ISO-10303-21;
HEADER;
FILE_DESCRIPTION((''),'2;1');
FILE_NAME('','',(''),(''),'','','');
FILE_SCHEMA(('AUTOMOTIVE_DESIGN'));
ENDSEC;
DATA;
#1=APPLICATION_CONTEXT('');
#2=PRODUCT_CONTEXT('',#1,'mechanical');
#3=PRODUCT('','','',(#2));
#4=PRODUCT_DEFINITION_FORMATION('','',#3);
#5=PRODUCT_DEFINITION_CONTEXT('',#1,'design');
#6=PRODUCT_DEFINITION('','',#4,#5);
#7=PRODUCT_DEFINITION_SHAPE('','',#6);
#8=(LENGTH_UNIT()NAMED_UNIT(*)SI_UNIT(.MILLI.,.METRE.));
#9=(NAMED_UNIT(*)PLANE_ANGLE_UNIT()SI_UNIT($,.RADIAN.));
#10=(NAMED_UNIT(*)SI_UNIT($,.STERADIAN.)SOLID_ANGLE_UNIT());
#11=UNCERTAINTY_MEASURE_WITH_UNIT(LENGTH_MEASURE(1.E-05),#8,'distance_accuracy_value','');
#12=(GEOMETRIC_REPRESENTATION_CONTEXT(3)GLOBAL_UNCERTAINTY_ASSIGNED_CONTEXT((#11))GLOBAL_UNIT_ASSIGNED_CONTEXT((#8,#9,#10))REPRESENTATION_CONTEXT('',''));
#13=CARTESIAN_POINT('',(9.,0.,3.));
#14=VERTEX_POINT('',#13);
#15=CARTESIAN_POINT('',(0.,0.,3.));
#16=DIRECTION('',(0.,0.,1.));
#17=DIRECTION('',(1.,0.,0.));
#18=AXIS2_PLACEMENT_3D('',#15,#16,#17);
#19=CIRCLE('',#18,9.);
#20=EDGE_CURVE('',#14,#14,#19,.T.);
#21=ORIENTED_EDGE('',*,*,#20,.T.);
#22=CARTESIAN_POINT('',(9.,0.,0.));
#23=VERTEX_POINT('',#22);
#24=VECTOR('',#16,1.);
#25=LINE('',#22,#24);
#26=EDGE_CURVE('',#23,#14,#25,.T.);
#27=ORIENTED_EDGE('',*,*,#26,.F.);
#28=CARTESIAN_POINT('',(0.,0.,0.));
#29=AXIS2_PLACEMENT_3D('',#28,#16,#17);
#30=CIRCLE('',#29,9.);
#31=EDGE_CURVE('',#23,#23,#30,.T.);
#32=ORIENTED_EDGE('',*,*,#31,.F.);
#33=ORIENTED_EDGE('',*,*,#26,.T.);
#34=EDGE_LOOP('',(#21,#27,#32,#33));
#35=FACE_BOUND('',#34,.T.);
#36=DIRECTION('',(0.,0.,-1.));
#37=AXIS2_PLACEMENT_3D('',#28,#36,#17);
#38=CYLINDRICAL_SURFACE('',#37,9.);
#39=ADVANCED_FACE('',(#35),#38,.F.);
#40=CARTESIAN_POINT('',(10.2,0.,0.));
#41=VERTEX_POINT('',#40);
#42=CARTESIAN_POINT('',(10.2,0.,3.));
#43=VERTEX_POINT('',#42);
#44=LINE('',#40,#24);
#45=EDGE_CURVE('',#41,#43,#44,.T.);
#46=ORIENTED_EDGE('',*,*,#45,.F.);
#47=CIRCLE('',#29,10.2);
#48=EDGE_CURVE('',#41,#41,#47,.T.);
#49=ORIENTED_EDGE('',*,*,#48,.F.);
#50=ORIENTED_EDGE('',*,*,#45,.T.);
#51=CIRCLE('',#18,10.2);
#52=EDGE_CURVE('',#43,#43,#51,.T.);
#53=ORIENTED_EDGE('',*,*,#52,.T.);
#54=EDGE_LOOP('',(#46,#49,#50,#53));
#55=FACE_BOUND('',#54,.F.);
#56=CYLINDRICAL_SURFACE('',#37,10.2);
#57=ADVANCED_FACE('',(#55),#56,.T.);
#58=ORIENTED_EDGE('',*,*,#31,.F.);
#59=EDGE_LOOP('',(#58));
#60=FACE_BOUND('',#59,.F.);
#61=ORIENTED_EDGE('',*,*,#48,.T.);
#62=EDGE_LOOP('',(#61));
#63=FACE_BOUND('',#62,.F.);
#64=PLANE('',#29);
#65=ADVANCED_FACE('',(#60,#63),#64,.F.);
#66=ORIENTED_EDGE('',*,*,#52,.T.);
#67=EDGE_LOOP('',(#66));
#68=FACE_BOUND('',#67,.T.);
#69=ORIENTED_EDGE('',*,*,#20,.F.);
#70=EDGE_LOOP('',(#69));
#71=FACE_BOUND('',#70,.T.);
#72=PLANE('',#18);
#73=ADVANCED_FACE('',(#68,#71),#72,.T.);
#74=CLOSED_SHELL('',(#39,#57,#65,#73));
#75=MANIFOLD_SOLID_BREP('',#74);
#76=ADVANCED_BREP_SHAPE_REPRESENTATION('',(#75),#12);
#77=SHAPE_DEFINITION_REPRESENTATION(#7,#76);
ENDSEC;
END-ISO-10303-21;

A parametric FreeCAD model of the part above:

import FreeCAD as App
import Part
import Sketcher

doc = App.newDocument("Part")
params = doc.addObject("Spreadsheet::Sheet", "Params")
for row, (alias, value) in enumerate([
    ("sketch1_diameter", "18 mm"),
    ("sketch1_diameter2", "20.4 mm"),
    ("pad1_length", "3 mm"),
], start=1):
    params.set(f"A{row}", alias)
    params.set(f"B{row}", "=" + value)
    params.setAlias(f"B{row}", alias)

body = doc.addObject("PartDesign::Body", "Body")

# Sketch on XY plane
sketch1 = body.newObject("Sketcher::SketchObject", "Sketch")
sketch1.AttachmentSupport = (doc.getObject("XY_Plane"), [""])
sketch1.MapMode = "FlatFace"
sketch1.addGeometry([
    Part.Circle(App.Vector(0, 0, 0), App.Vector(0, 0, 1), 10.2),
    Part.Circle(App.Vector(0, 0, 0), App.Vector(0, 0, 1), 9),
], False)
sketch1.addConstraint([
    Sketcher.Constraint("Coincident", 0, 3, -1, 1),
    Sketcher.Constraint("Coincident", 1, 3, -1, 1),
    Sketcher.Constraint("Diameter", 1, 18.0),
    Sketcher.Constraint("Diameter", 0, 20.4),
])
sketch1.setExpression("Constraints[2]", "Params.sketch1_diameter")
sketch1.setExpression("Constraints[3]", "Params.sketch1_diameter2")
pad1 = body.newObject("PartDesign::Pad", "Pad")
pad1.Profile = sketch1
pad1.setExpression("Length", "Params.pad1_length")

doc.recompute()
